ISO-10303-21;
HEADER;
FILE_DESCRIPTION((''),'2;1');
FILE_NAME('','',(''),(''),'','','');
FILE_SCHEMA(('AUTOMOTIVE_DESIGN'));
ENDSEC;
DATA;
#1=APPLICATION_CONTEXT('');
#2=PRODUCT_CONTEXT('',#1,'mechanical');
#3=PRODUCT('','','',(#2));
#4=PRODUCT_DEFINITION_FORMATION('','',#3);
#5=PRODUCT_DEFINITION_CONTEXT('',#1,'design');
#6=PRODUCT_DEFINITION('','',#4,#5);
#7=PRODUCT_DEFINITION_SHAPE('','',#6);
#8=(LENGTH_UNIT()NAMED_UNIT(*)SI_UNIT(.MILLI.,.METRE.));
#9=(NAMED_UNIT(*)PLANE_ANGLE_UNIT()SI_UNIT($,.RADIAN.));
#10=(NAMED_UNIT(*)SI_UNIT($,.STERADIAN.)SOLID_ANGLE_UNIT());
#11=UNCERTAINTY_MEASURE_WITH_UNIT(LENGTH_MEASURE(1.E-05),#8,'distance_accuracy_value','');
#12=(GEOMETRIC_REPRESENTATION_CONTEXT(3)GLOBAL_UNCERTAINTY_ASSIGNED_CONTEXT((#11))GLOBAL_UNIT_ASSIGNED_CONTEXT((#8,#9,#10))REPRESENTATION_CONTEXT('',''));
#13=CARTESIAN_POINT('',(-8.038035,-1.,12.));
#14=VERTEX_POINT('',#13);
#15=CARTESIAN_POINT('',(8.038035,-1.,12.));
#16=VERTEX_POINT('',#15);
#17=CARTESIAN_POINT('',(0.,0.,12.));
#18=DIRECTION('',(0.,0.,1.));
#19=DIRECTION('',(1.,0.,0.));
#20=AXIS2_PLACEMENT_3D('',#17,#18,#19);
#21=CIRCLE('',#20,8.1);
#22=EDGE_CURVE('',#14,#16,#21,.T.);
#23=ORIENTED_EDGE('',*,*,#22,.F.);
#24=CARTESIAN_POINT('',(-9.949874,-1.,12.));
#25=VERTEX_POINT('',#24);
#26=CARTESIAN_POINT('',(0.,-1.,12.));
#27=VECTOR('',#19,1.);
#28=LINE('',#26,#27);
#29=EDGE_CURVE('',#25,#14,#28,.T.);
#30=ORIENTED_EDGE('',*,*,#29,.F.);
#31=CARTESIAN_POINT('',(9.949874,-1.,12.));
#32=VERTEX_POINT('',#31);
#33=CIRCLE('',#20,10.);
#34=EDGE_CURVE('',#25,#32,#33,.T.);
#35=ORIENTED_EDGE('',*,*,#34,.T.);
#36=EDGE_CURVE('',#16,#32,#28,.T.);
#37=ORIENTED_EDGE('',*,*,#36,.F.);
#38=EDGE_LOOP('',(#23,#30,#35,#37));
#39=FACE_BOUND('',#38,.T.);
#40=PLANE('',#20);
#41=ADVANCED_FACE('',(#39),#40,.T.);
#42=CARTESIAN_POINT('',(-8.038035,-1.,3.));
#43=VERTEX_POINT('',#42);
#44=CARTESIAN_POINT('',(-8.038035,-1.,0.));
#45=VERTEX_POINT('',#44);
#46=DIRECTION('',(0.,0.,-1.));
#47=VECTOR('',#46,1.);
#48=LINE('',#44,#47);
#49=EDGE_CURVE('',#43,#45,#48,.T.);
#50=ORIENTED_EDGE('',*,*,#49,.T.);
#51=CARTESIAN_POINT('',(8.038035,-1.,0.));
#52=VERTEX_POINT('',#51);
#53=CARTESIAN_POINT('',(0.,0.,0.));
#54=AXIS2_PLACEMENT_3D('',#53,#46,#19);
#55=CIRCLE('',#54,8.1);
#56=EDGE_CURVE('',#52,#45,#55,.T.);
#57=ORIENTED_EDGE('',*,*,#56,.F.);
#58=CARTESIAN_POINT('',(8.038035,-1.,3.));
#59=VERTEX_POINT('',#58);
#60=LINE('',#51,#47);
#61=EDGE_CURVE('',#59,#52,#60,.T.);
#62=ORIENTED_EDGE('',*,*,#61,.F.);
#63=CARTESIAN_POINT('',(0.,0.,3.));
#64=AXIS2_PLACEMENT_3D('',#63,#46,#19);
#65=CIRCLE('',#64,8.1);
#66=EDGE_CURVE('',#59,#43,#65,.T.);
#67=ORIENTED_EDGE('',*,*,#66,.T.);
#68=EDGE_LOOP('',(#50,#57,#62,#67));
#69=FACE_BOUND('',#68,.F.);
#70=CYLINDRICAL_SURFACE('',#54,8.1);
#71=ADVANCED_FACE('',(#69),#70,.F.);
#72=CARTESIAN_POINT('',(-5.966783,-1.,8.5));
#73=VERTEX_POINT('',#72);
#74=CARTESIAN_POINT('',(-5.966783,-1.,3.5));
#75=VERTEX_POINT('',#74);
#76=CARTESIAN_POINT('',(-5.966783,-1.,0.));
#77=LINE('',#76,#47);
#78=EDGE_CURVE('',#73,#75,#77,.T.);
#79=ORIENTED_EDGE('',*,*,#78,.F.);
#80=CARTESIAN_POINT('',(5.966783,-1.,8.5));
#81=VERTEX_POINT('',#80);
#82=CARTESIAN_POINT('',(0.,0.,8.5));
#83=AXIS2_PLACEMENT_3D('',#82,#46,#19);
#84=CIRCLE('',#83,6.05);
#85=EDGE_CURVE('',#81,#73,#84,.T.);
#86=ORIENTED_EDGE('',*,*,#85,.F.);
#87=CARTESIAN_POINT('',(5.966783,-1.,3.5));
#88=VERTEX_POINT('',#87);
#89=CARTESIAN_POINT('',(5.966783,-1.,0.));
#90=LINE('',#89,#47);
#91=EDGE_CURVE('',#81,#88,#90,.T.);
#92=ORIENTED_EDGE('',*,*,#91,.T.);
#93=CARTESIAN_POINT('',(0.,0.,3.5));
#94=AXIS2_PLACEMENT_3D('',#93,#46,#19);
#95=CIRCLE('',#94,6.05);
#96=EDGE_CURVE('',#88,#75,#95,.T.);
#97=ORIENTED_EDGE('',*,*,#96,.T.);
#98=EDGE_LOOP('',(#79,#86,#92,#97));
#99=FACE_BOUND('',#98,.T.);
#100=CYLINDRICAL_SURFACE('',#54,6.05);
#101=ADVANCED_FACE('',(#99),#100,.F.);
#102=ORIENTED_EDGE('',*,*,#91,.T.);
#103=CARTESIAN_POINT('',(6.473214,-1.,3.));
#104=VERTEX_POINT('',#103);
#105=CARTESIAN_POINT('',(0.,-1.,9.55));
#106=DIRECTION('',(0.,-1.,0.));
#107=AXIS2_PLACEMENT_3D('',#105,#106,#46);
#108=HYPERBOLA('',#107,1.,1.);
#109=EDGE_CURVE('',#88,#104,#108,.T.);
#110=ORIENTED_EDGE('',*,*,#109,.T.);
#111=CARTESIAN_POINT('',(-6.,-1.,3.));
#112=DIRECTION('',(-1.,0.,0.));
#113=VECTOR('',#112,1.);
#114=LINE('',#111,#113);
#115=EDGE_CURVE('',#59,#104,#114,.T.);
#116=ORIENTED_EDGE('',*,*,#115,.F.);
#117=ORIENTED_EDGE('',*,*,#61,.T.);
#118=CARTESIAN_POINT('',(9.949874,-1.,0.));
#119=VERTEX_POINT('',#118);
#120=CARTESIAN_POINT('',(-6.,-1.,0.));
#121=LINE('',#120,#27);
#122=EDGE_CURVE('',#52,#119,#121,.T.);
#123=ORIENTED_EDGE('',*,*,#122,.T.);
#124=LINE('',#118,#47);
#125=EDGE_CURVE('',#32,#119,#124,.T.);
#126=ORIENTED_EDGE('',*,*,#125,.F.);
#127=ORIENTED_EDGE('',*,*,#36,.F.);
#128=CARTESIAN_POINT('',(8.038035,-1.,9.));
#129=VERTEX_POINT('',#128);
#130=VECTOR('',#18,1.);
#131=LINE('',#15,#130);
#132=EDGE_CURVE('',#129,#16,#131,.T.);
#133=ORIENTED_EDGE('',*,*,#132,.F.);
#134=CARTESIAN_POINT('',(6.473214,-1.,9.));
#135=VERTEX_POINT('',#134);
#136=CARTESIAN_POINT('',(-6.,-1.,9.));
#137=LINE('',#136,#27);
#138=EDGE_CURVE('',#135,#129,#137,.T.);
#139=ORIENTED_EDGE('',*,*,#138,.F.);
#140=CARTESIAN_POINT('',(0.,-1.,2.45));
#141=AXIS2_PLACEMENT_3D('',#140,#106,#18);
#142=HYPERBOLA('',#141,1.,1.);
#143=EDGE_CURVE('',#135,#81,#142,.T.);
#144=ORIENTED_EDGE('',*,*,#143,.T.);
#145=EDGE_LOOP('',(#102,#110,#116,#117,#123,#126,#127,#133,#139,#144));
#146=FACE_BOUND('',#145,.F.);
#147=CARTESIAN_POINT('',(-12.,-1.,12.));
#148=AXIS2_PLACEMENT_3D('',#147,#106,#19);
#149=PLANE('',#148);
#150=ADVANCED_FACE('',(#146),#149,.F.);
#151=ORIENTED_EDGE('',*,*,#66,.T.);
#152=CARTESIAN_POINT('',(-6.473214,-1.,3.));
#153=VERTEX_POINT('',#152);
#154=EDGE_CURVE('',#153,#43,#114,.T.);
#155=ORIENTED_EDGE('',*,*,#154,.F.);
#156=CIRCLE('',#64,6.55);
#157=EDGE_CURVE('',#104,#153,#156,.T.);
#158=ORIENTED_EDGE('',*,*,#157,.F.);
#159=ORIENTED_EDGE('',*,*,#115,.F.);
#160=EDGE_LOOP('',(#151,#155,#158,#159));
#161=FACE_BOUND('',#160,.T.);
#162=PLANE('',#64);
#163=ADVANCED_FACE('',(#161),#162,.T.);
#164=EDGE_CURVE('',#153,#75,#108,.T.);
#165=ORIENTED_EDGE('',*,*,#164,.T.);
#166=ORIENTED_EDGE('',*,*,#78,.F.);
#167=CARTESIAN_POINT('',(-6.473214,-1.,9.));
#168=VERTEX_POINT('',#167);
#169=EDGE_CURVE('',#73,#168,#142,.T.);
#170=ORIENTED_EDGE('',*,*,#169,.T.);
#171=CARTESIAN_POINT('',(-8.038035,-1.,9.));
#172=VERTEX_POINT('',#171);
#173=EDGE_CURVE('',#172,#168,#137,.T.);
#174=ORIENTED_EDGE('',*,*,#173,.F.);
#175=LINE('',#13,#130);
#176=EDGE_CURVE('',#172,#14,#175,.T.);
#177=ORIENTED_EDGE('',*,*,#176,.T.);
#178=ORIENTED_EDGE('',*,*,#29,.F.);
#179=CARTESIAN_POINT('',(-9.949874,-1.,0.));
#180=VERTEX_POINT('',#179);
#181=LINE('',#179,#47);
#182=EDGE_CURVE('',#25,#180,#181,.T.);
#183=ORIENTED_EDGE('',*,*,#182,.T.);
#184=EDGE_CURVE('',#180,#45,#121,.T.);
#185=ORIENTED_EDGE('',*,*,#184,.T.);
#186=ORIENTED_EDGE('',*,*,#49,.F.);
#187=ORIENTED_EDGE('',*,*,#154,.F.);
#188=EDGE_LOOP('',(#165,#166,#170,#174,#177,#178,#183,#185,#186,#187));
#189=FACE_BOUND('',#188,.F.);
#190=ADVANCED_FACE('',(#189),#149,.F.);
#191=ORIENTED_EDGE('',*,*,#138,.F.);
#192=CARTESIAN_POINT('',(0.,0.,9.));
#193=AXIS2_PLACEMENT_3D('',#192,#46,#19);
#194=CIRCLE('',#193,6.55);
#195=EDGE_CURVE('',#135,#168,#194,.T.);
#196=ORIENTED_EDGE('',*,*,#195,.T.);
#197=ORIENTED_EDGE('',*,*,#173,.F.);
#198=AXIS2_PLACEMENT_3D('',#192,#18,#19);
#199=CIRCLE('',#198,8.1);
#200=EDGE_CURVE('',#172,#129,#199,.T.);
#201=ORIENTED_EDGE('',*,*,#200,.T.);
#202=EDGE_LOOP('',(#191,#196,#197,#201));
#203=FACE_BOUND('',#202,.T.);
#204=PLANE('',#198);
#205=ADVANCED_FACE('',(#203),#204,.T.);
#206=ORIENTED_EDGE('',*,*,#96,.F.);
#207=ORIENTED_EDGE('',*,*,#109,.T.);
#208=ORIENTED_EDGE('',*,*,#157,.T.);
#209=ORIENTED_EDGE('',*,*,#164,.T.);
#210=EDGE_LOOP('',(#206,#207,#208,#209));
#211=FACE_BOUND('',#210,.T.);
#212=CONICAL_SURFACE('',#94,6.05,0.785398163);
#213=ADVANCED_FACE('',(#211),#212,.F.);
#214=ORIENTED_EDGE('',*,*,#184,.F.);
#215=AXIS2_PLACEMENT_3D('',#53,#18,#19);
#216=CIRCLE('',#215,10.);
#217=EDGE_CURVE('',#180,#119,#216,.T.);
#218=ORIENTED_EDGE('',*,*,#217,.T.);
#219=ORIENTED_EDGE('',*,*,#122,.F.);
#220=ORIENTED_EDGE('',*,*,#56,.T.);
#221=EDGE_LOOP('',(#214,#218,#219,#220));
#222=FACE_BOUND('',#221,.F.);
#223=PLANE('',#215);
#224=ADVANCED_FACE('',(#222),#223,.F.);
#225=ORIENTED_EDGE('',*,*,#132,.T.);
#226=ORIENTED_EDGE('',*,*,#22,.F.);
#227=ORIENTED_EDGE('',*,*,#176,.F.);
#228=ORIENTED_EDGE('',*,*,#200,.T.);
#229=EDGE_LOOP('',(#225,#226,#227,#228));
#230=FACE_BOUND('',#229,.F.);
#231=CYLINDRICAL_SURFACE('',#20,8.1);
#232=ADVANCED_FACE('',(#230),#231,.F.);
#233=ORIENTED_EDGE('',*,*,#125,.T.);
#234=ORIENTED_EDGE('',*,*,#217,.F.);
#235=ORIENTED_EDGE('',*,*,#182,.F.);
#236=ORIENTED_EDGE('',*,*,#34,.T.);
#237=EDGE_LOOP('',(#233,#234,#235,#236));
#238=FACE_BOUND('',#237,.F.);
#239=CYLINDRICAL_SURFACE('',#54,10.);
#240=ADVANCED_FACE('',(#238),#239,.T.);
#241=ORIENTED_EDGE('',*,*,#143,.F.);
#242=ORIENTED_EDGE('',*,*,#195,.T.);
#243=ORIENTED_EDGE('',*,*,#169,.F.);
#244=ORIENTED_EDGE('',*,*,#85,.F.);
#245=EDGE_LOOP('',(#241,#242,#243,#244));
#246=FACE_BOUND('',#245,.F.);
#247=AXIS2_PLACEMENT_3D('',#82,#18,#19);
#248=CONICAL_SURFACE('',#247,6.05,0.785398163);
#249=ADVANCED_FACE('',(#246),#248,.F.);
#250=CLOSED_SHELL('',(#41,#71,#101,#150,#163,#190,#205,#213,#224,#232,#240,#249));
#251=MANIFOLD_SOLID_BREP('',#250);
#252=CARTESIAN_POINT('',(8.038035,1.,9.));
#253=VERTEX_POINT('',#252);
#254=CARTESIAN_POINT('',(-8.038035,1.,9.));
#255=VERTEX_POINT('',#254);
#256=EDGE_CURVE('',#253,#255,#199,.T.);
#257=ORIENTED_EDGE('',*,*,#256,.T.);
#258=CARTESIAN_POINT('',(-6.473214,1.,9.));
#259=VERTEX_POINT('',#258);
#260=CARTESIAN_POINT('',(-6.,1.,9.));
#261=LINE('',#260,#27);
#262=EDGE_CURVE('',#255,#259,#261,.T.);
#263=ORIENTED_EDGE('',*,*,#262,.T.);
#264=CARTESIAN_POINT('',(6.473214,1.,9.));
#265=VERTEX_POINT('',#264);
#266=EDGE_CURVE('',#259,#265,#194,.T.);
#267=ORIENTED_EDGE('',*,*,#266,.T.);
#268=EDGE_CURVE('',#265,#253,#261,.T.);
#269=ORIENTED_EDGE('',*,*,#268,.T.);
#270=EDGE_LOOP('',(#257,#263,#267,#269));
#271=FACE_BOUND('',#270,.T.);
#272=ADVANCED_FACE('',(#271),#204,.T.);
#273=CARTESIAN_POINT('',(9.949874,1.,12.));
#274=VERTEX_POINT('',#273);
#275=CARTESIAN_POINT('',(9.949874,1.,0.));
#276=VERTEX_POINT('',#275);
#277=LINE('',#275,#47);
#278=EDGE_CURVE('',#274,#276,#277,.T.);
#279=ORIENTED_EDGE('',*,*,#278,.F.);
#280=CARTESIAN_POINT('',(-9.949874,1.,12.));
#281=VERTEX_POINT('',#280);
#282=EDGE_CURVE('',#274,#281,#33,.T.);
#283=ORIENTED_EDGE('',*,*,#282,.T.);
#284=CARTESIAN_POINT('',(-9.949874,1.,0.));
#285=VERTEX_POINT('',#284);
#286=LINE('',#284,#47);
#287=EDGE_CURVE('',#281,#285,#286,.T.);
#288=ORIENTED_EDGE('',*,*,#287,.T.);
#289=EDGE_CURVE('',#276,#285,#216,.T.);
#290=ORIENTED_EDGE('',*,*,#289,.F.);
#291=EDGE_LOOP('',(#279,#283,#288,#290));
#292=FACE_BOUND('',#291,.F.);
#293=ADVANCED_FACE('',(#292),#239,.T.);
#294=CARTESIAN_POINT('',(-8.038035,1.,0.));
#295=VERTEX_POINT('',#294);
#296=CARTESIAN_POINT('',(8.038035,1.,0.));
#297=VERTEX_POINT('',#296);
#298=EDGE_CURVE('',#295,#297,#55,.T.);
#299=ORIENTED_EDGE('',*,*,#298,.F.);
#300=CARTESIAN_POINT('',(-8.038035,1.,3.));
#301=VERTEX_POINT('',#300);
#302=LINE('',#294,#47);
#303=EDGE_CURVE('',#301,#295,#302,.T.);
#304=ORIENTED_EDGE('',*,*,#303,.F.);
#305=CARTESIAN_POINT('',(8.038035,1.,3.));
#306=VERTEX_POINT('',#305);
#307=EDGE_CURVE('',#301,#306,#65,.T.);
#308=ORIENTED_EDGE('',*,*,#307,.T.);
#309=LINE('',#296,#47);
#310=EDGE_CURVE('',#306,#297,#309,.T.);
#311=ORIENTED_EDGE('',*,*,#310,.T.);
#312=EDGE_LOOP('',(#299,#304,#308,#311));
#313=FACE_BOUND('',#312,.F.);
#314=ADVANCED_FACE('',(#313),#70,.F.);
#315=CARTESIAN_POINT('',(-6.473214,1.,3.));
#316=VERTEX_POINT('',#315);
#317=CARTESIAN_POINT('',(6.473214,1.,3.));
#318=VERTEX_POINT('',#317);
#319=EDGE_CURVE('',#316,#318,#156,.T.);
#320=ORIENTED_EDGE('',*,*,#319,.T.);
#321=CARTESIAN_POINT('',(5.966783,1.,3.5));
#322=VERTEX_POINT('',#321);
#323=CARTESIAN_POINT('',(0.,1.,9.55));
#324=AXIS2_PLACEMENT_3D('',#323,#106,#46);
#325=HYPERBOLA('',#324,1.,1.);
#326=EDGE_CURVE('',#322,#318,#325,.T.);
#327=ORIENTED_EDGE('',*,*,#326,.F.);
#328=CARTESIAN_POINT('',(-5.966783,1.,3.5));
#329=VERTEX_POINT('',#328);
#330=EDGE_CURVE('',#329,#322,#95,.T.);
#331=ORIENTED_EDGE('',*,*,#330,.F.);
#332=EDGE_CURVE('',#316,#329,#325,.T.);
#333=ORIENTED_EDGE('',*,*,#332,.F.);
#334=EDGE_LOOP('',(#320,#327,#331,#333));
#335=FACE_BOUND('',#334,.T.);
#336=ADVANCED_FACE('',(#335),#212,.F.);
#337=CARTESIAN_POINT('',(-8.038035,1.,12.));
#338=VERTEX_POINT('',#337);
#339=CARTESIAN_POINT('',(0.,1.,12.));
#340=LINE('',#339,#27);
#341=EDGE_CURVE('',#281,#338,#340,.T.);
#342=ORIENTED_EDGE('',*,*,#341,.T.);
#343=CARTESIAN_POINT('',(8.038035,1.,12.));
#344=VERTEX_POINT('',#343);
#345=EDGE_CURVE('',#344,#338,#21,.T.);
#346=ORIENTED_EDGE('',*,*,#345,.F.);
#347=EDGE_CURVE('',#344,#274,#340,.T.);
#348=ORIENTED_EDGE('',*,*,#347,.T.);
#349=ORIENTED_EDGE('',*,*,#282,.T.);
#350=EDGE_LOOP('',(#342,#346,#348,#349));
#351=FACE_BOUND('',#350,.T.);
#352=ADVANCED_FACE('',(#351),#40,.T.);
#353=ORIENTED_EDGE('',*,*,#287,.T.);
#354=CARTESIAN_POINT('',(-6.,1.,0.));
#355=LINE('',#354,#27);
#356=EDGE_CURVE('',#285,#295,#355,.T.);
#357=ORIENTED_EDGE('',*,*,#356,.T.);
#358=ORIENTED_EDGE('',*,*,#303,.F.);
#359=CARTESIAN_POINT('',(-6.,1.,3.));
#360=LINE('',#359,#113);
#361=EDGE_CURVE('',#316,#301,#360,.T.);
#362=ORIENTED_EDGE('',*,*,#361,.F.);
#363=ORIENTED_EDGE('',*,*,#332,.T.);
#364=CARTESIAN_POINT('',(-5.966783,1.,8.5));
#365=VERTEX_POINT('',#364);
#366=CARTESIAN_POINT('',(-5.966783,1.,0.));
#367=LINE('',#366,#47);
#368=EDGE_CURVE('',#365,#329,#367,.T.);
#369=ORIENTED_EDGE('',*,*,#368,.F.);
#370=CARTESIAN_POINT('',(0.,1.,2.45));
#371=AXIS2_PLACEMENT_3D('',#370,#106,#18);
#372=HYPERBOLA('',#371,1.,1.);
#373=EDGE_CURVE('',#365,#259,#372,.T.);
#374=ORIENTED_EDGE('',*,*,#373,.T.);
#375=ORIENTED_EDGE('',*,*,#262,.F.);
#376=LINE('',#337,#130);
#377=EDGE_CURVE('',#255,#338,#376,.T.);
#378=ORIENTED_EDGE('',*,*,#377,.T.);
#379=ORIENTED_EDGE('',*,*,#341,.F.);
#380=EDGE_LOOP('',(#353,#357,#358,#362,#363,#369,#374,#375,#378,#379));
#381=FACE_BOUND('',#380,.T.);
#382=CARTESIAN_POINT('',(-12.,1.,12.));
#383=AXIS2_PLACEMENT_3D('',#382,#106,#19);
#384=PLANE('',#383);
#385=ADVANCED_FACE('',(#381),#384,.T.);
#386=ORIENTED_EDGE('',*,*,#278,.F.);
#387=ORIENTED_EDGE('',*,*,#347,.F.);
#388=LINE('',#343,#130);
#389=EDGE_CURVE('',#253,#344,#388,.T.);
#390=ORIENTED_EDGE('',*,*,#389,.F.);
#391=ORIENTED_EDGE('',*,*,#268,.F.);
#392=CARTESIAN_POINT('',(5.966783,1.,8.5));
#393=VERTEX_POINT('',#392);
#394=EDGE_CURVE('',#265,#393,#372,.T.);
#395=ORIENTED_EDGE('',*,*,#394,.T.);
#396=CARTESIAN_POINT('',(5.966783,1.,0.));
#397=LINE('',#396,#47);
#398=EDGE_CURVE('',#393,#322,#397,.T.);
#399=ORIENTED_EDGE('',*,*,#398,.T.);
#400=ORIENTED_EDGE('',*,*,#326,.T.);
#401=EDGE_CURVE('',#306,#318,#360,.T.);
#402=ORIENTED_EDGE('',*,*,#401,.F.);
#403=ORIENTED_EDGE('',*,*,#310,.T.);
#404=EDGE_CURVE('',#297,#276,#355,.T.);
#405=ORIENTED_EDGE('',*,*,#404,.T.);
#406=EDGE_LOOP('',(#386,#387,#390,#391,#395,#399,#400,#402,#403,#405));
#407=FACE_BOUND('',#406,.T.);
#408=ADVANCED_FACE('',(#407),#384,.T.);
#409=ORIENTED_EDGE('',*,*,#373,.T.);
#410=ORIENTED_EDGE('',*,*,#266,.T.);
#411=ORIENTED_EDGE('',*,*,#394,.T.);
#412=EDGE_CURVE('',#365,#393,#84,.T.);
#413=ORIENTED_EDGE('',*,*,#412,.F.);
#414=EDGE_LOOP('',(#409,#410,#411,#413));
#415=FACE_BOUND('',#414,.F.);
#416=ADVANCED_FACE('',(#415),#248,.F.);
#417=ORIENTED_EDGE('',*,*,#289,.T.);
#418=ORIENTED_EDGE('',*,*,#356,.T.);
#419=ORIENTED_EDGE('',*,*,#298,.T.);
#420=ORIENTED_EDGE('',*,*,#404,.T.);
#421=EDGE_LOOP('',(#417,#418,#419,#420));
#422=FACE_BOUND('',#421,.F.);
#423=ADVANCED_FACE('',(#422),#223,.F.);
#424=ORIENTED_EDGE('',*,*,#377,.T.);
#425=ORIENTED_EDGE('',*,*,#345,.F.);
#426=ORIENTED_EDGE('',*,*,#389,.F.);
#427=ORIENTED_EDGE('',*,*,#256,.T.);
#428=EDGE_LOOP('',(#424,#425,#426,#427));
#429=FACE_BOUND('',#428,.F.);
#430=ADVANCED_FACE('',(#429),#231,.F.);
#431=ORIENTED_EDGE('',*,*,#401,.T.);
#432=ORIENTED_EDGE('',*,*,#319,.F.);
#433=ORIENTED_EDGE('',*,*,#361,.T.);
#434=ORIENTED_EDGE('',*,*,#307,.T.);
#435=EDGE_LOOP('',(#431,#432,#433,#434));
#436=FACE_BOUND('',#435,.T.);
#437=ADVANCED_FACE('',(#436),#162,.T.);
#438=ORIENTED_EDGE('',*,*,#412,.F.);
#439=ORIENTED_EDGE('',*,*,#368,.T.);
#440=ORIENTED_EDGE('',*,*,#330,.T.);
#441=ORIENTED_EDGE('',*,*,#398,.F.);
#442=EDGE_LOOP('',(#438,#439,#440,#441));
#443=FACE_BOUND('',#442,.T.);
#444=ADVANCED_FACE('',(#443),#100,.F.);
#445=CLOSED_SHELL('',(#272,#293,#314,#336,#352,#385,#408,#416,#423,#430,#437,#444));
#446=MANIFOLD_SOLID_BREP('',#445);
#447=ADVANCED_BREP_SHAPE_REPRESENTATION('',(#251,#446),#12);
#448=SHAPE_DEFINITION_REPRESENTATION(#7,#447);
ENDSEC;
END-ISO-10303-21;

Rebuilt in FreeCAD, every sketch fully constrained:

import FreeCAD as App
import Part
import Sketcher
from FreeCAD import Vector


def edges_at(feature, points):
    """Names of the edges that pass closest to the given points."""
    edges = feature.Shape.Edges
    near = lambda p: min(range(len(edges)), key=lambda i: edges[i].distToShape(Part.Vertex(*p))[0])
    return sorted({f"Edge{near(p) + 1}" for p in points})


def add_polygon(sketch, points):
    """Adds a closed chain of lines whose ends are joined by coincident constraints."""
    first, n = sketch.GeometryCount, len(points)
    for a, b in zip(points, points[1:] + points[:1]):
        sketch.addGeometry(Part.LineSegment(App.Vector(*a, 0), App.Vector(*b, 0)), False)
    for i in range(n):
        sketch.addConstraint(Sketcher.Constraint("Coincident", first + i, 2, first + (i + 1) % n, 1))

doc = App.newDocument("Part")
params = doc.addObject("Spreadsheet::Sheet", "Params")
for row, (alias, value) in enumerate([
    ("sketch1_diameter", "20 mm"),
    ("sketch1_diameter2", "12.1 mm"),
    ("pad1_length", "12 mm"),
    ("sketch2_diameter", "16.2 mm"),
    ("pocket1_length", "3 mm"),
    ("sketch3_diameter", "16.2 mm"),
    ("pocket2_length", "3 mm"),
    ("chamfer_size", "0.5 mm"),
    ("sketch4_width", "24 mm"),
    ("sketch4_height", "2 mm"),
], start=1):
    params.set(f"A{row}", alias)
    params.set(f"B{row}", "=" + value)
    params.setAlias(f"B{row}", alias)

body = doc.addObject("PartDesign::Body", "Body")
body.AllowCompound = True

sketch1 = doc.addObject("Sketcher::SketchObject", "Sketch")
body.addObject(sketch1)
sketch1.AttachmentSupport = (doc.XY_Plane, [""])
sketch1.MapMode = "FlatFace"
sketch1.addGeometry([
    Part.Circle(Vector(0, 0, 0), Vector(0, 0, 1), 10),
    Part.Circle(Vector(0, 0, 0), Vector(0, 0, 1), 6),
], False)
sketch1.addConstraint([
    Sketcher.Constraint("Coincident", 0, 3, -1, 1),
    Sketcher.Constraint("Coincident", 1, 3, -1, 1),
    Sketcher.Constraint("Diameter", 0, 20.0),
    Sketcher.Constraint("Diameter", 1, 12.1),
])
sketch1.setExpression("Constraints[2]", "Params.sketch1_diameter")
sketch1.setExpression("Constraints[3]", "Params.sketch1_diameter2")
pad1 = doc.addObject("PartDesign::Pad", "Pad")
body.addObject(pad1)
pad1.Profile = sketch1
pad1.setExpression("Length", "Params.pad1_length")

sketch2 = doc.addObject("Sketcher::SketchObject", "Sketch001")
body.addObject(sketch2)
sketch2.AttachmentSupport = (doc.XY_Plane, [""])
sketch2.MapMode = "FlatFace"
sketch2.addGeometry(Part.Circle(Vector(0, 0, 0), Vector(0, 0, 1), 8), False)
sketch2.addConstraint([
    Sketcher.Constraint("Coincident", 0, 3, -1, 1),
    Sketcher.Constraint("Diameter", 0, 16.2),
])
sketch2.setExpression("Constraints[1]", "Params.sketch2_diameter")
pocket1 = doc.addObject("PartDesign::Pocket", "Pocket")
body.addObject(pocket1)
pocket1.Profile = sketch2
pocket1.setExpression("Length", "Params.pocket1_length")
pocket1.Reversed = True

sketch3 = doc.addObject("Sketcher::SketchObject", "Sketch002")
body.addObject(sketch3)
sketch3.AttachmentSupport = (doc.XY_Plane, [""])
sketch3.MapMode = "FlatFace"
sketch3.AttachmentOffset = App.Placement(Vector(0, 0, 12), App.Rotation())
sketch3.addGeometry(Part.Circle(Vector(0, 0, 0), Vector(0, 0, 1), 8), False)
sketch3.addConstraint([
    Sketcher.Constraint("Coincident", 0, 3, -1, 1),
    Sketcher.Constraint("Diameter", 0, 16.2),
])
sketch3.setExpression("Constraints[1]", "Params.sketch3_diameter")
pocket2 = doc.addObject("PartDesign::Pocket", "Pocket001")
body.addObject(pocket2)
pocket2.Profile = sketch3
pocket2.setExpression("Length", "Params.pocket2_length")
doc.recompute()

chamfer = doc.addObject("PartDesign::Chamfer", "Chamfer")
body.addObject(chamfer)
chamfer.Base = (pocket2, edges_at(pocket2, [(-6.05, 0, 9), (-6.05, 0, 3)]))
chamfer.setExpression("Size", "Params.chamfer_size")

sketch4 = doc.addObject("Sketcher::SketchObject", "Sketch003")
body.addObject(sketch4)
sketch4.AttachmentSupport = (doc.XY_Plane, [""])
sketch4.MapMode = "FlatFace"
sketch4.AttachmentOffset = App.Placement(Vector(0, 0, 12), App.Rotation())
add_polygon(sketch4, [(-12, 1), (-12, -1), (12, -1), (12, 1)])
sketch4.addConstraint([
    Sketcher.Constraint("Vertical", 0),
    Sketcher.Constraint("Horizontal", 1),
    Sketcher.Constraint("Vertical", 2),
    Sketcher.Constraint("Horizontal", 3),
    Sketcher.Constraint("Symmetric", 0, 2, 2, 2, -1, 1),
    Sketcher.Constraint("DistanceX", 1, 1, 1, 2, 24.0),
    Sketcher.Constraint("DistanceY", 0, 2, 0, 1, 2.0),
])
sketch4.setExpression("Constraints[9]", "Params.sketch4_width")
sketch4.setExpression("Constraints[10]", "Params.sketch4_height")
pocket3 = doc.addObject("PartDesign::Pocket", "Pocket002")
body.addObject(pocket3)
pocket3.Profile = sketch4
pocket3.Type = "ThroughAll"

doc.recompute()
